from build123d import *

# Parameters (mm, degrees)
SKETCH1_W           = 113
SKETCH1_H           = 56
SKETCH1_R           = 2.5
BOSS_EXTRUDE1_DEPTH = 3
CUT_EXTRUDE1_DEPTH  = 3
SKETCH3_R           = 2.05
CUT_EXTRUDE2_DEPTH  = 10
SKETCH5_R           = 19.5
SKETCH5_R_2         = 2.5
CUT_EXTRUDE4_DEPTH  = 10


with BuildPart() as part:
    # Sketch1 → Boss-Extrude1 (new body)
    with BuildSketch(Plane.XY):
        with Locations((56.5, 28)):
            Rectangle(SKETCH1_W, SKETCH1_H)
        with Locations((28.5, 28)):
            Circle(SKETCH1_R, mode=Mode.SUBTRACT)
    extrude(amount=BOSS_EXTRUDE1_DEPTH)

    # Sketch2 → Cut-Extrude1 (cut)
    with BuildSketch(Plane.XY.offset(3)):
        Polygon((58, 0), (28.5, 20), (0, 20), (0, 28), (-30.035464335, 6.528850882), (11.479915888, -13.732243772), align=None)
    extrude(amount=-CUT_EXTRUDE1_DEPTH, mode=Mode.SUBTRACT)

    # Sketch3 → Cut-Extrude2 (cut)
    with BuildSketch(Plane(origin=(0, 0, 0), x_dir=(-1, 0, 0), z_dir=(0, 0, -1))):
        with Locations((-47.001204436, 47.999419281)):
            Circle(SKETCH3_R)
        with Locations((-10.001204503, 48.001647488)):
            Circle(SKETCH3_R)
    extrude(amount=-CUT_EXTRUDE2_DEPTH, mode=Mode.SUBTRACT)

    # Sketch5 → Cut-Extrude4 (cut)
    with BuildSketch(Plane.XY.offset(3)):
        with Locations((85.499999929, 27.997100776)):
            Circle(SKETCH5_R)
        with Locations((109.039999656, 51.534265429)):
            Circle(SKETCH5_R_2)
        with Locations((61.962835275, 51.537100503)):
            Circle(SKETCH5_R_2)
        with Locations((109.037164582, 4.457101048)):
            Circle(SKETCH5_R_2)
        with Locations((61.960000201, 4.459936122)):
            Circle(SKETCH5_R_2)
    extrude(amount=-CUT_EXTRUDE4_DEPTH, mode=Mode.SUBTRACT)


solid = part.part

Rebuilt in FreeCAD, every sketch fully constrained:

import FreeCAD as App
import Part
import Sketcher


def add_polygon(sketch, points):
    """Adds a closed chain of lines whose ends are joined by coincident constraints."""
    first, n = sketch.GeometryCount, len(points)
    for a, b in zip(points, points[1:] + points[:1]):
        sketch.addGeometry(Part.LineSegment(App.Vector(*a, 0), App.Vector(*b, 0)), False)
    for i in range(n):
        sketch.addConstraint(Sketcher.Constraint("Coincident", first + i, 2, first + (i + 1) % n, 1))

doc = App.newDocument("Part")
body = doc.addObject("PartDesign::Body", "Body")

sketch1 = body.newObject("Sketcher::SketchObject", "Sketch")
sketch1.AttachmentSupport = (doc.getObject("XY_Plane"), [""])
sketch1.MapMode = "FlatFace"
add_polygon(sketch1, [(0, 56), (0, 0), (113, 0), (113, 56)])
sketch1.addGeometry(Part.Circle(App.Vector(28.5, 28, 0), App.Vector(0, 0, 1), 2.5), False)
sketch1.addConstraint(Sketcher.Constraint("Vertical", 0))
sketch1.addConstraint(Sketcher.Constraint("Horizontal", 1))
sketch1.addConstraint(Sketcher.Constraint("Vertical", 2))
sketch1.addConstraint(Sketcher.Constraint("Horizontal", 3))
sketch1.addConstraint(Sketcher.Constraint("Coincident", 0, 2, -1, 1))
sketch1.addConstraint(Sketcher.Constraint("Diameter", 4, 5.0))
sketch1.addConstraint(Sketcher.Constraint("DistanceX", 1, 1, 1, 2, 113.0))
sketch1.addConstraint(Sketcher.Constraint("DistanceY", 0, 2, 0, 1, 56.0))
sketch1.addConstraint(Sketcher.Constraint("DistanceY", -1, 1, 4, 3, 28.0))
sketch1.addConstraint(Sketcher.Constraint("DistanceX", -1, 1, 4, 3, 28.5))
pad1 = body.newObject("PartDesign::Pad", "Pad")
pad1.Profile = sketch1
pad1.Length = 3

sketch2 = body.newObject("Sketcher::SketchObject", "Sketch001")
sketch2.AttachmentSupport = (doc.getObject("XY_Plane"), [""])
sketch2.MapMode = "FlatFace"
sketch2.AttachmentOffset = App.Placement(App.Vector(0, 0, 3), App.Rotation())
add_polygon(sketch2, [(58, 0), (28, 20), (0, 20), (0, 28), (-30, 7), (11, -14)])
sketch2.addConstraint(Sketcher.Constraint("Horizontal", 1))
sketch2.addConstraint(Sketcher.Constraint("Vertical", 2))
sketch2.addConstraint(Sketcher.Constraint("PointOnObject", 1, 2, -2))
sketch2.addConstraint(Sketcher.Constraint("PointOnObject", 5, 2, -1))
sketch2.addConstraint(Sketcher.Constraint("DistanceY", 2, 1, 2, 2, 8.0))
sketch2.addConstraint(Sketcher.Constraint("DistanceX", 1, 2, 1, 1, 28.5))
sketch2.addConstraint(Sketcher.Constraint("DistanceY", -1, 1, 0, 2, 20.0))
sketch2.addConstraint(Sketcher.Constraint("DistanceX", -1, 1, 5, 2, 58.0))
sketch2.addConstraint(Sketcher.Constraint("DistanceY", -1, 1, 3, 2, 6.528851))
sketch2.addConstraint(Sketcher.Constraint("DistanceX", 3, 2, 4, 2, 41.51538))
sketch2.addConstraint(Sketcher.Constraint("Distance", 3, 36.920717))
sketch2.addConstraint(Sketcher.Constraint("Distance", 4, 46.195657))
pocket1 = body.newObject("PartDesign::Pocket", "Pocket")
pocket1.Profile = sketch2
pocket1.Length = 3

sketch3 = body.newObject("Sketcher::SketchObject", "Sketch002")
sketch3.AttachmentSupport = (doc.getObject("XY_Plane"), [""])
sketch3.MapMode = "FlatFace"
sketch3.addGeometry(Part.Circle(App.Vector(47, 48, 0), App.Vector(0, 0, 1), 2), False)
sketch3.addGeometry(Part.Circle(App.Vector(10, 48, 0), App.Vector(0, 0, 1), 2), False)
sketch3.addConstraint(Sketcher.Constraint("Equal", 0, 1))
sketch3.addConstraint(Sketcher.Constraint("Diameter", 0, 4.1))
sketch3.addConstraint(Sketcher.Constraint("DistanceX", 1, 3, 0, 3, 37.0))
sketch3.addConstraint(Sketcher.Constraint("DistanceY", -1, 1, 0, 3, 47.999419))
sketch3.addConstraint(Sketcher.Constraint("DistanceY", 0, 3, 1, 3, 0.002228))
sketch3.addConstraint(Sketcher.Constraint("DistanceX", -1, 1, 0, 3, 47.001204))
pocket2 = body.newObject("PartDesign::Pocket", "Pocket001")
pocket2.Profile = sketch3
pocket2.Length = 10
pocket2.Reversed = True

sketch4 = body.newObject("Sketcher::SketchObject", "Sketch003")
sketch4.AttachmentSupport = (doc.getObject("XY_Plane"), [""])
sketch4.MapMode = "FlatFace"
sketch4.AttachmentOffset = App.Placement(App.Vector(0, 0, 3), App.Rotation())
sketch4.addGeometry(Part.Circle(App.Vector(85.5, 28, 0), App.Vector(0, 0, 1), 19.5), False)
sketch4.addGeometry(Part.Circle(App.Vector(109, 51.5, 0), App.Vector(0, 0, 1), 2.5), False)
sketch4.addGeometry(Part.Circle(App.Vector(62, 51.5, 0), App.Vector(0, 0, 1), 2.5), False)
sketch4.addGeometry(Part.Circle(App.Vector(109, 4.5, 0), App.Vector(0, 0, 1), 2.5), False)
sketch4.addGeometry(Part.Circle(App.Vector(62, 4.5, 0), App.Vector(0, 0, 1), 2.5), False)
sketch4.addConstraint(Sketcher.Constraint("Equal", 1, 2))
sketch4.addConstraint(Sketcher.Constraint("Equal", 2, 3))
sketch4.addConstraint(Sketcher.Constraint("Equal", 3, 4))
sketch4.addConstraint(Sketcher.Constraint("Diameter", 0, 39.0))
sketch4.addConstraint(Sketcher.Constraint("Diameter", 1, 5.0))
sketch4.addConstraint(Sketcher.Constraint("DistanceX", -1, 1, 0, 3, 85.5))
sketch4.addConstraint(Sketcher.Constraint("DistanceX", -1, 1, 1, 3, 109.04))
sketch4.addConstraint(Sketcher.Constraint("DistanceX", -1, 1, 4, 3, 61.96))
sketch4.addConstraint(Sketcher.Constraint("DistanceY", 0, 3, 2, 3, 23.54))
sketch4.addConstraint(Sketcher.Constraint("DistanceY", 3, 3, 0, 3, 23.54))
sketch4.addConstraint(Sketcher.Constraint("DistanceY", -1, 1, 0, 3, 27.997101))
sketch4.addConstraint(Sketcher.Constraint("DistanceX", 2, 3, 3, 3, 47.074329))
sketch4.addConstraint(Sketcher.Constraint("DistanceY", 4, 3, 1, 3, 47.074329))
sketch4.addConstraint(Sketcher.Constraint("DistanceY", -1, 1, 1, 3, 51.534265))
sketch4.addConstraint(Sketcher.Constraint("DistanceX", -1, 1, 2, 3, 61.962835))
pocket3 = body.newObject("PartDesign::Pocket", "Pocket002")
pocket3.Profile = sketch4
pocket3.Length = 10

doc.recompute()
